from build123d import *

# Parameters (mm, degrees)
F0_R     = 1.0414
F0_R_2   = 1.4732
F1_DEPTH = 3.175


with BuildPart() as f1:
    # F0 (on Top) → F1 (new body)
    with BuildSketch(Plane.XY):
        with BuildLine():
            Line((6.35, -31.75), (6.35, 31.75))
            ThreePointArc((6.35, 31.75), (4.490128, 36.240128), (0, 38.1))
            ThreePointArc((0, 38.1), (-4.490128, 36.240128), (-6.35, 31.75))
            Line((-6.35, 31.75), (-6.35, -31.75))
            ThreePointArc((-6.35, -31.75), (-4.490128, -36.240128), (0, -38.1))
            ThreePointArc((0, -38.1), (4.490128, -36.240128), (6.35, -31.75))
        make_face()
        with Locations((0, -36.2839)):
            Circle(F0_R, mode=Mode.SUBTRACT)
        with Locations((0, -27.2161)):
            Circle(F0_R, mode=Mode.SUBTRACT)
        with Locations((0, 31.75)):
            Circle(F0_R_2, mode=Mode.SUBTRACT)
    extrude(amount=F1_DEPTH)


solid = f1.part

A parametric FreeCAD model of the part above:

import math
import FreeCAD as App
import Part
import Sketcher

V = App.Vector
Q = App.Units.Quantity

doc = App.newDocument("Part")
body = doc.addObject("PartDesign::Body", "Body")

sketch1 = body.newObject("Sketcher::SketchObject", "Sketch")
sketch1.AttachmentSupport = (doc.getObject("XY_Plane"), [""])
sketch1.MapMode = "FlatFace"
sketch1.addGeometry([
    Part.LineSegment(V(6.3, -31.8, 0), V(6.3, 31.8, 0)),
    Part.ArcOfCircle(Part.Circle(V(0, 31.7, 0), V(0, 0, 1), 6.4), math.radians(0), math.radians(90)),
    Part.ArcOfCircle(Part.Circle(V(0, 31.7, 0), V(0, 0, 1), 6.4), math.radians(90), math.radians(180)),
    Part.LineSegment(V(-6.3, 31.8, 0), V(-6.3, -31.8, 0)),
    Part.ArcOfCircle(Part.Circle(V(0, -31.7, 0), V(0, 0, 1), 6.4), math.radians(-180), math.radians(-90)),
    Part.ArcOfCircle(Part.Circle(V(0, -31.7, 0), V(0, 0, 1), 6.4), math.radians(-90), math.radians(0)),
    Part.Circle(V(0, -36.3, 0), V(0, 0, 1), 1),
    Part.Circle(V(0, -27.2, 0), V(0, 0, 1), 1),
    Part.Circle(V(0, 31.8, 0), V(0, 0, 1), 1.5),
], False)
sketch1.addConstraint([
    Sketcher.Constraint("Tangent", 0, 2, 1, 1),
    Sketcher.Constraint("Tangent", 1, 2, 2, 1),
    Sketcher.Constraint("Tangent", 2, 2, 3, 1),
    Sketcher.Constraint("Tangent", 3, 2, 4, 1),
    Sketcher.Constraint("Tangent", 4, 2, 5, 1),
    Sketcher.Constraint("Tangent", 5, 2, 0, 1),
    Sketcher.Constraint("Vertical", 0),
    Sketcher.Constraint("Vertical", 3),
    Sketcher.Constraint("Coincident", 8, 3, 1, 3),
    Sketcher.Constraint("Equal", 1, 2),
    Sketcher.Constraint("Equal", 2, 4),
    Sketcher.Constraint("Equal", 6, 7),
    Sketcher.Constraint("Symmetric", 1, 3, 4, 3, -1, 1),
    Sketcher.Constraint("PointOnObject", 6, 3, -2),
    Sketcher.Constraint("PointOnObject", 7, 3, -2),
    Sketcher.Constraint("PointOnObject", 1, 2, -2),
    Sketcher.Constraint("PointOnObject", 4, 2, -2),
    Sketcher.Constraint("Radius", 1, Q("0.25 in")),
    Sketcher.Constraint("Diameter", 6, Q("0.082 in")),
    Sketcher.Constraint("Diameter", 8, Q("0.116 in")),
    Sketcher.Constraint("DistanceY", 0, 1, 0, 2, Q("2.5 in")),
    Sketcher.Constraint("DistanceY", 6, 3, 7, 3, Q("0.357 in")),
    Sketcher.Constraint("DistanceY", 6, 3, -1, 1, Q("1.4285 in")),
])
pad1 = body.newObject("PartDesign::Pad", "Pad")
pad1.Profile = sketch1
pad1.Length = Q("0.125 in")

doc.recompute()
